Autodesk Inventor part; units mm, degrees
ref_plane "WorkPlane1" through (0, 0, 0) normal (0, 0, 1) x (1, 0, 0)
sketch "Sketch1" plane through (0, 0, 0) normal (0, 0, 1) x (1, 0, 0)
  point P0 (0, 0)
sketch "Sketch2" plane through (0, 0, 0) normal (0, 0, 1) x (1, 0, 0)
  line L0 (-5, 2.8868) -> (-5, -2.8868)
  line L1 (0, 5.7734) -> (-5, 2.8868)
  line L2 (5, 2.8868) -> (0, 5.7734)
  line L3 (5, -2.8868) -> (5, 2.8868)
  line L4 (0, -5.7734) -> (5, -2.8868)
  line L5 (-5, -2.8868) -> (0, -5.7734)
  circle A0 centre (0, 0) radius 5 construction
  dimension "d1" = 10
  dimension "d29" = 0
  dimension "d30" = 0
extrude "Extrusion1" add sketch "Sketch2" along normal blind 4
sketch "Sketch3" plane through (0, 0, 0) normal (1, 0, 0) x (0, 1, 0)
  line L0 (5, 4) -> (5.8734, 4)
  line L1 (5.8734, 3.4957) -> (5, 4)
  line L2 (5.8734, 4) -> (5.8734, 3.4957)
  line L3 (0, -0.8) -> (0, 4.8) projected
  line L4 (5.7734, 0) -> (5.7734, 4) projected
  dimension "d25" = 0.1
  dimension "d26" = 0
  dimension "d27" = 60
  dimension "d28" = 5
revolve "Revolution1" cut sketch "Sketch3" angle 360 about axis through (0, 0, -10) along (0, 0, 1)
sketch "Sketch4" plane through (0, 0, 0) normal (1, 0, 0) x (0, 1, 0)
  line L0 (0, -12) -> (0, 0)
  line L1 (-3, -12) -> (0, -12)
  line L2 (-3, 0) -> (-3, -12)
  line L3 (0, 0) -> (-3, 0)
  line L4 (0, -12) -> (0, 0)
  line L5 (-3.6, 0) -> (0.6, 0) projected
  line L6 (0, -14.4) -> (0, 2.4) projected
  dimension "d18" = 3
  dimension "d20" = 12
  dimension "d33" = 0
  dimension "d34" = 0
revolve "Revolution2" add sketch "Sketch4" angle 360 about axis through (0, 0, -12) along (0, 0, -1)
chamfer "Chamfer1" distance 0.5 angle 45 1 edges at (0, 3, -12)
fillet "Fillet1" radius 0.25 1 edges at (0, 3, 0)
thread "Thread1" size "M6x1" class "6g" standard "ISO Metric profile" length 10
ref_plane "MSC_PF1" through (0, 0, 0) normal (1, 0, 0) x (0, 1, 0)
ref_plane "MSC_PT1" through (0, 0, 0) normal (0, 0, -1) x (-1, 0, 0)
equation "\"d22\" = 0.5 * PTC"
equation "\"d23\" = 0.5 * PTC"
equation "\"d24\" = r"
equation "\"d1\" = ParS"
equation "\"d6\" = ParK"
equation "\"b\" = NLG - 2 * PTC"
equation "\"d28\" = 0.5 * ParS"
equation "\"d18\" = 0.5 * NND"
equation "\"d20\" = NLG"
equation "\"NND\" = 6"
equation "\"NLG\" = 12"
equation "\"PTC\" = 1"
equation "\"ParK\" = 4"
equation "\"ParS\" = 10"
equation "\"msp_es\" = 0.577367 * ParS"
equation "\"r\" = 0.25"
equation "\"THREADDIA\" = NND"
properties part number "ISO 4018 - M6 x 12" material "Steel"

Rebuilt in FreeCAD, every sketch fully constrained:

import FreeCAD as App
import Part
import Sketcher

V = App.Vector
Q = App.Units.Quantity


def edges_at(feature, points):
    """Names of the edges that pass closest to the given points."""
    edges = feature.Shape.Edges
    near = lambda p: min(range(len(edges)), key=lambda i: edges[i].distToShape(Part.Vertex(*p))[0])
    return sorted({f"Edge{near(p) + 1}" for p in points})


def add_polygon(sketch, points):
    """Adds a closed chain of lines whose ends are joined by coincident constraints."""
    first, n = sketch.GeometryCount, len(points)
    for a, b in zip(points, points[1:] + points[:1]):
        sketch.addGeometry(Part.LineSegment(App.Vector(*a, 0), App.Vector(*b, 0)), False)
    for i in range(n):
        sketch.addConstraint(Sketcher.Constraint("Coincident", first + i, 2, first + (i + 1) % n, 1))

doc = App.newDocument("Part")
body = doc.addObject("PartDesign::Body", "Body")

# Sketch on XY plane
sketch1 = body.newObject("Sketcher::SketchObject", "Sketch")
sketch1.AttachmentSupport = (doc.getObject("XY_Plane"), [""])
sketch1.MapMode = "FlatFace"
add_polygon(sketch1, [(0, 6), (-5, 3), (-5, -3), (0, -6), (5, -3), (5, 3)])  # lines 0-5
sketch1.addConstraint([
    Sketcher.Constraint("Vertical", 1),
    Sketcher.Constraint("Vertical", 4),
    Sketcher.Constraint("Symmetric", 0, 2, 3, 2, -1, 1),
    Sketcher.Constraint("Symmetric", 2, 2, 5, 2, -1, 1),
    Sketcher.Constraint("PointOnObject", 2, 2, -2),
    Sketcher.Constraint("Parallel", 2, 5),
    Sketcher.Constraint("Horizontal", 1, 2, 3, 2),
    Sketcher.Constraint("DistanceX", 1, 2, 3, 2, Q("10 mm")),
    Sketcher.Constraint("DistanceY", 1, 2, 1, 1, Q("5.7736 mm")),
    Sketcher.Constraint("Distance", 0, Q("5.7734 mm")),
])
pad1 = body.newObject("PartDesign::Pad", "Pad")
pad1.Profile = sketch1
pad1.Length = 4

# Sketch on YZ plane
sketch2 = body.newObject("Sketcher::SketchObject", "Sketch001")
sketch2.AttachmentSupport = (doc.getObject("YZ_Plane"), [""])
sketch2.MapMode = "FlatFace"
add_polygon(sketch2, [(5, 4), (5.9, 3.5), (5.9, 4)])  # lines 0-2
sketch2.addConstraint([
    Sketcher.Constraint("Vertical", 1),
    Sketcher.Constraint("Horizontal", 2),
    Sketcher.Constraint("DistanceX", -1, 1, 2, 2, Q("5 mm")),
    Sketcher.Constraint("DistanceY", -1, 1, 1, 2, Q("4 mm")),
    Sketcher.Constraint("DistanceX", 2, 2, 2, 1, Q("0.8734 mm")),
    Sketcher.Constraint("DistanceY", 1, 1, 1, 2, Q("0.5043 mm")),
])
groove = body.newObject("PartDesign::Groove", "Groove")
groove.Profile = sketch2
groove.ReferenceAxis = (sketch2, ["V_Axis"])
groove.Angle = 360

# Sketch on YZ plane
sketch3 = body.newObject("Sketcher::SketchObject", "Sketch002")
sketch3.AttachmentSupport = (doc.getObject("YZ_Plane"), [""])
sketch3.MapMode = "FlatFace"
add_polygon(sketch3, [(-3, -12), (0, -12), (0, 0), (-3, 0)])  # lines 0-3
sketch3.addConstraint([
    Sketcher.Constraint("Horizontal", 0),
    Sketcher.Constraint("Vertical", 1),
    Sketcher.Constraint("Horizontal", 2),
    Sketcher.Constraint("Vertical", 3),
    Sketcher.Constraint("Coincident", 1, 2, -1, 1),
    Sketcher.Constraint("DistanceX", 0, 1, 0, 2, Q("3 mm")),
    Sketcher.Constraint("DistanceY", 1, 1, 1, 2, Q("12 mm")),
])
revolution = body.newObject("PartDesign::Revolution", "Revolution")
revolution.Profile = sketch3
revolution.ReferenceAxis = (sketch3, ["V_Axis"])
revolution.Angle = 360
doc.recompute()

chamfer = body.newObject("PartDesign::Chamfer", "Chamfer")
chamfer.Base = (revolution, edges_at(revolution, [(0, 3, -12)]))
chamfer.Size = 0.5
doc.recompute()

fillet = body.newObject("PartDesign::Fillet", "Fillet")
fillet.Base = (chamfer, edges_at(chamfer, [(0, 3, 0)]))
fillet.Radius = 0.25

doc.recompute()
